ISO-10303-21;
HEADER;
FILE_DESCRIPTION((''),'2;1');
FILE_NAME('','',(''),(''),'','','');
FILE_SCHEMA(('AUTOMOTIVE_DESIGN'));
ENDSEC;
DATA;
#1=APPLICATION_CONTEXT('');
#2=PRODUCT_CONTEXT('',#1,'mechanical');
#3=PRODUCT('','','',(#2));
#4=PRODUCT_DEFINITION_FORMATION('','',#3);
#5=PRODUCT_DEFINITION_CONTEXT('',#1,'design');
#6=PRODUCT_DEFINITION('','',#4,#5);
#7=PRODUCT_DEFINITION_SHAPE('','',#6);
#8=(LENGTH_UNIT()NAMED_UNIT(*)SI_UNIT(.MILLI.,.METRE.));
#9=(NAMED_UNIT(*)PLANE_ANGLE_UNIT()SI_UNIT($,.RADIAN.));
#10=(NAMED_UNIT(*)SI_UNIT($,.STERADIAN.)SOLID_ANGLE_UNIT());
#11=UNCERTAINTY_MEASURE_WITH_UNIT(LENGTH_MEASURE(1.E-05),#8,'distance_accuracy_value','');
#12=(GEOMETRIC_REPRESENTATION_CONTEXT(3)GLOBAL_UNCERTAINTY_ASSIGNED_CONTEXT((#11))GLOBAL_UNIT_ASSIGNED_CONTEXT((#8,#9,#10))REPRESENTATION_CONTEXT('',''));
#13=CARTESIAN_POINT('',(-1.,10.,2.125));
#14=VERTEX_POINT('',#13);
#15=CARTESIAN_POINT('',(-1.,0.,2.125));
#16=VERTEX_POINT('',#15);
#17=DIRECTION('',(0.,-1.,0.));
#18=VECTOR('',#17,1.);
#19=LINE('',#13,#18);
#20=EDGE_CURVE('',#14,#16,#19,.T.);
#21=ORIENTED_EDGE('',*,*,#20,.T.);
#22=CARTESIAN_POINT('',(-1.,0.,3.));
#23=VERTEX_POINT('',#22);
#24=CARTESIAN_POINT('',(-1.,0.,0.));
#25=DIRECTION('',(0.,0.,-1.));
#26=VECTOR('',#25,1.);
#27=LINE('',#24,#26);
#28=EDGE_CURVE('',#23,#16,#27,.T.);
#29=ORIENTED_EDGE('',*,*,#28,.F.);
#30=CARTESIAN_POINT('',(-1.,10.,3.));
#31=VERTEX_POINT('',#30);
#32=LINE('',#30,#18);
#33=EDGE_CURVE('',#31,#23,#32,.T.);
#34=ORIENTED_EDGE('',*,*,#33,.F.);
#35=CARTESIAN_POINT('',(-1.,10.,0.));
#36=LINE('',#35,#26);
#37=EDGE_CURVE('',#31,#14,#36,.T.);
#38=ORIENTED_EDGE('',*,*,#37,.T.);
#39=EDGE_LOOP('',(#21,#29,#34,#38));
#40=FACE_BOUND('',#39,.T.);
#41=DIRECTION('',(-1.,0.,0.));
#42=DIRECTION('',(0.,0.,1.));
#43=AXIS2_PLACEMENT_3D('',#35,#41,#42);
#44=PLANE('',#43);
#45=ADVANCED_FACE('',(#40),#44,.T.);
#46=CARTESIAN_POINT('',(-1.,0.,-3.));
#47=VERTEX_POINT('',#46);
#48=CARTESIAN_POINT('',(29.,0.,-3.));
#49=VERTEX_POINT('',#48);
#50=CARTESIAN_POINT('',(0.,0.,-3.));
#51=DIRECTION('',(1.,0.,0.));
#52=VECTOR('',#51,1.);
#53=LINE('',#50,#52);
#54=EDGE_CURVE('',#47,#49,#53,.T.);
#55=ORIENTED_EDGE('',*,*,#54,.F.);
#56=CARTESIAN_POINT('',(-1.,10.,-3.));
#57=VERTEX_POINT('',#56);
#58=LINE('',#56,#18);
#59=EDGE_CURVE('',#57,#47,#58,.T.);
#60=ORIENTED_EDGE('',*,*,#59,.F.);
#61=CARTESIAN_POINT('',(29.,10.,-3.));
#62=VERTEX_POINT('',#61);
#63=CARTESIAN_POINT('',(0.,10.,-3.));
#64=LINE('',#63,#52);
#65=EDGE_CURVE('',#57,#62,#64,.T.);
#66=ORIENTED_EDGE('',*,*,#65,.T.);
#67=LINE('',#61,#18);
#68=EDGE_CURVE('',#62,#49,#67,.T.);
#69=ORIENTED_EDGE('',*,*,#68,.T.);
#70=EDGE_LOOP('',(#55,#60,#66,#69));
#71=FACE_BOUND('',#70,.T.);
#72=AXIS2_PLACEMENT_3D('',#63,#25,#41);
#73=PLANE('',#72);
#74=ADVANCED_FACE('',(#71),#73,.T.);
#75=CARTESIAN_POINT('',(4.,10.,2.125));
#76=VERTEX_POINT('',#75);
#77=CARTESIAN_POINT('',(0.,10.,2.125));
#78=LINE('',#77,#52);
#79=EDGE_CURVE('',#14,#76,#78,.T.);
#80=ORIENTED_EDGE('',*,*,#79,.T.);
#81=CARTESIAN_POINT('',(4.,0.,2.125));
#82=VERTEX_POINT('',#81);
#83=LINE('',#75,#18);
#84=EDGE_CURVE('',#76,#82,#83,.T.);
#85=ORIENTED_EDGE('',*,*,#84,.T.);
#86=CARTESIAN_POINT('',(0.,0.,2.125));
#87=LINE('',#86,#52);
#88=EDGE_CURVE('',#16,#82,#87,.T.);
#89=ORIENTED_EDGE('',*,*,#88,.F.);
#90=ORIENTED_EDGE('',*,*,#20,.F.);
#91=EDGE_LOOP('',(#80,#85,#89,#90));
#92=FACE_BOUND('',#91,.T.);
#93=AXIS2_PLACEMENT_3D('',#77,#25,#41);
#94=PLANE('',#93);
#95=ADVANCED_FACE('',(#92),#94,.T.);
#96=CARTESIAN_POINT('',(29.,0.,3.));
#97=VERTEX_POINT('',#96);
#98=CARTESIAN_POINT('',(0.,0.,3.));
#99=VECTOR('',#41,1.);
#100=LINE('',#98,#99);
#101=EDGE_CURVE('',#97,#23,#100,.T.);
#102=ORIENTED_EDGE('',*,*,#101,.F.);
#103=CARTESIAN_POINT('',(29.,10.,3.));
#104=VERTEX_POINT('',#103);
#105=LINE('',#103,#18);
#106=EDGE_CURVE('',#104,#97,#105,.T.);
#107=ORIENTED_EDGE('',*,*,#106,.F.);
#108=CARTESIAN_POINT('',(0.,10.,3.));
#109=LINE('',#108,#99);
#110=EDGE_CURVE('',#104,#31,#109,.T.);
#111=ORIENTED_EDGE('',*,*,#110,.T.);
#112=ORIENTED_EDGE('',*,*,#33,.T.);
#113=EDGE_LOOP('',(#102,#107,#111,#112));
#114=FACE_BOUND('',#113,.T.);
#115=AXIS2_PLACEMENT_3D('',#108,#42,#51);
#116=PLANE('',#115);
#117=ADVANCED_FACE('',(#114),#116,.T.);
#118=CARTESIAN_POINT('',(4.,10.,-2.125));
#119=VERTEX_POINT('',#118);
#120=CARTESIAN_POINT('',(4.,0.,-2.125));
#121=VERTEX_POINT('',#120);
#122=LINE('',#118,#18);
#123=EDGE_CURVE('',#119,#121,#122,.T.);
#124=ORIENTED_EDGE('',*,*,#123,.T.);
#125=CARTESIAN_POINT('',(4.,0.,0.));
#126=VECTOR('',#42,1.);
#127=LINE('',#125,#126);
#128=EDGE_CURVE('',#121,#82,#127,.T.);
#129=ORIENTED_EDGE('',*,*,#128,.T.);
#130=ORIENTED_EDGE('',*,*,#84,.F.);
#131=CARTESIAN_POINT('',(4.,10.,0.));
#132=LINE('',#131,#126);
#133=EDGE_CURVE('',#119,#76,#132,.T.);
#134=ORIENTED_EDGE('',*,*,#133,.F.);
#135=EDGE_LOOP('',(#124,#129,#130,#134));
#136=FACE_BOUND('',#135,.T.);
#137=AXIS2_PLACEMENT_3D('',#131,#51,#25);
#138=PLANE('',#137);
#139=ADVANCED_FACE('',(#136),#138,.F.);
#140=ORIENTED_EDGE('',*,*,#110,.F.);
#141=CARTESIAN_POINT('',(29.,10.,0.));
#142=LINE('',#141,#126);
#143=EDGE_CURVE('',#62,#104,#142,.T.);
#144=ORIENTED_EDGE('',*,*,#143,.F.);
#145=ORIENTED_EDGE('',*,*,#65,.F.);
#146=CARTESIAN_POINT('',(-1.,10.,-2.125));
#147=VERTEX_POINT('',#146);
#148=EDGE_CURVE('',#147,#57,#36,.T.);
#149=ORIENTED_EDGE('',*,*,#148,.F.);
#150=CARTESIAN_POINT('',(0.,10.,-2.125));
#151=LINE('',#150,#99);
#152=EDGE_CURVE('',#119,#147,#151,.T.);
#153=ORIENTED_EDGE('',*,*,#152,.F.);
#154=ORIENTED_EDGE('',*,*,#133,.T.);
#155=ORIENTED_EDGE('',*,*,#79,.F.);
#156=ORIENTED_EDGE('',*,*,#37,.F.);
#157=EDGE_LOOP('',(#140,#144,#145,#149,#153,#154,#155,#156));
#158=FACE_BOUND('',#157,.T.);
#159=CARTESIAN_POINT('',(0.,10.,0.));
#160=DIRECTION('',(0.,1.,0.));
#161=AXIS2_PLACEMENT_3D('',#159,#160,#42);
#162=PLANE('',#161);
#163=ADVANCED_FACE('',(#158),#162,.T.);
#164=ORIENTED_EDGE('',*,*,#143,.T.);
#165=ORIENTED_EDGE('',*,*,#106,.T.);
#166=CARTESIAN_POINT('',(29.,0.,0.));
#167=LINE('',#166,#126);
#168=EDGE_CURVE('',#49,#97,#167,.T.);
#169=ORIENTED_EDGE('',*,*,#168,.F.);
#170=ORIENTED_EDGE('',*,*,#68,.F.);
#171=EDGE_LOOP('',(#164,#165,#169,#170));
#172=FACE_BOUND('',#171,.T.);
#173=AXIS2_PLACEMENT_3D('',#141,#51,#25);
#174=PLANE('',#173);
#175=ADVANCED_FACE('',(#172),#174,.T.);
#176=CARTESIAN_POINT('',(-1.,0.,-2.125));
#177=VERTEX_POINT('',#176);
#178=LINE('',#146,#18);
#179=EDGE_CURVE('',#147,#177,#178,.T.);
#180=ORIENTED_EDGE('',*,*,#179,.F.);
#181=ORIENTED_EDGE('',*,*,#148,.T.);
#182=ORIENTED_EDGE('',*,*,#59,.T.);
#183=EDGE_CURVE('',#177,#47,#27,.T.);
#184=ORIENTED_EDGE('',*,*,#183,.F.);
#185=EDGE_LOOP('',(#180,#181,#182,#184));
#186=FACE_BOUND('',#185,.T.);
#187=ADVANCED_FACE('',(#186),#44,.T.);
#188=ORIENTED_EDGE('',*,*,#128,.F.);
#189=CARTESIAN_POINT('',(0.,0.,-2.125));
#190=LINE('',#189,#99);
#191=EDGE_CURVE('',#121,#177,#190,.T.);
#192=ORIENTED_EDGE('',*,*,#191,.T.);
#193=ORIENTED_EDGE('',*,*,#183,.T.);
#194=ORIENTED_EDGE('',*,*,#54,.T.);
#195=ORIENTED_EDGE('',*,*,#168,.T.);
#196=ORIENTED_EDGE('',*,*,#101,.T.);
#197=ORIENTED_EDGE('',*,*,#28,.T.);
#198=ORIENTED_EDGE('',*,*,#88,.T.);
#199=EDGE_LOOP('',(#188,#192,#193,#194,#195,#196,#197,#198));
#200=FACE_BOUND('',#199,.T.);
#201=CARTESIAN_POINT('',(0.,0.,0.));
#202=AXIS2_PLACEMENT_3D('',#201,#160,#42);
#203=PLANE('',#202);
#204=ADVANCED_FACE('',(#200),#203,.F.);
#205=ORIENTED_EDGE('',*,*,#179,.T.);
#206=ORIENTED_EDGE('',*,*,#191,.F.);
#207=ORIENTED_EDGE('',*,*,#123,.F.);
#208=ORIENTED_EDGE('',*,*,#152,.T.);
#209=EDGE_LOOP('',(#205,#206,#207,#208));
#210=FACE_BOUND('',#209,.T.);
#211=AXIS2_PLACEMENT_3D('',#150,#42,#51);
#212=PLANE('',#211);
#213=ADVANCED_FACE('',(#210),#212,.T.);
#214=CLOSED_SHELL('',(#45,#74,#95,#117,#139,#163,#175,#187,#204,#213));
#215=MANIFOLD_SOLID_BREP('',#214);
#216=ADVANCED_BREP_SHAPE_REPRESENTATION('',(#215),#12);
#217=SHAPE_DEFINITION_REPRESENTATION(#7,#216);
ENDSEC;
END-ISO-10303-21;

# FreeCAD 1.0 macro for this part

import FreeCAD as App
import Part
import Sketcher
from FreeCAD import Vector

doc = App.newDocument("Part")
body = doc.addObject("PartDesign::Body", "Body")

# Sketch on XZ plane
sketch1 = body.newObject("Sketcher::SketchObject", "Sketch")
sketch1.AttachmentSupport = (doc.getObject("XZ_Plane"), [""])
sketch1.MapMode = "FlatFace"
sketch1.addGeometry(Part.LineSegment(Vector(-1, -3, 0), Vector(-1, 3, 0)), False)
sketch1.addGeometry(Part.LineSegment(Vector(-1, 3, 0), Vector(29, 3, 0)), False)
sketch1.addGeometry(Part.LineSegment(Vector(29, 3, 0), Vector(29, -3, 0)), False)
sketch1.addGeometry(Part.LineSegment(Vector(29, -3, 0), Vector(-1, -3, 0)), False)
sketch1.addConstraint(Sketcher.Constraint("Coincident", 0, 2, 1, 1))
sketch1.addConstraint(Sketcher.Constraint("Coincident", 1, 2, 2, 1))
sketch1.addConstraint(Sketcher.Constraint("Coincident", 2, 2, 3, 1))
sketch1.addConstraint(Sketcher.Constraint("Coincident", 3, 2, 0, 1))
sketch1.addConstraint(Sketcher.Constraint("Vertical", 0))
sketch1.addConstraint(Sketcher.Constraint("Horizontal", 1))
sketch1.addConstraint(Sketcher.Constraint("Vertical", 2))
sketch1.addConstraint(Sketcher.Constraint("Horizontal", 3))
sketch1.addConstraint(Sketcher.Constraint("DistanceX", 1, 1, 1, 2, 30.0))
sketch1.addConstraint(Sketcher.Constraint("DistanceY", 0, 1, 0, 2, 6.0))
sketch1.addConstraint(Sketcher.Constraint("DistanceX", 0, 2, -1, 1, 1.0))
sketch1.addConstraint(Sketcher.Constraint("DistanceY", -1, 1, 0, 2, 3.0))
pad1 = body.newObject("PartDesign::Pad", "Pad")
pad1.Profile = sketch1
pad1.Length = 10
pad1.Reversed = True

# Sketch on XZ plane
sketch2 = body.newObject("Sketcher::SketchObject", "Sketch001")
sketch2.AttachmentSupport = (doc.getObject("XZ_Plane"), [""])
sketch2.MapMode = "FlatFace"
sketch2.addGeometry(Part.LineSegment(Vector(-1, -2.1, 0), Vector(-1, 2.1, 0)), False)
sketch2.addGeometry(Part.LineSegment(Vector(-1, 2.1, 0), Vector(4, 2.1, 0)), False)
sketch2.addGeometry(Part.LineSegment(Vector(4, 2.1, 0), Vector(4, -2.1, 0)), False)
sketch2.addGeometry(Part.LineSegment(Vector(4, -2.1, 0), Vector(-1, -2.1, 0)), False)
sketch2.addConstraint(Sketcher.Constraint("Coincident", 0, 2, 1, 1))
sketch2.addConstraint(Sketcher.Constraint("Coincident", 1, 2, 2, 1))
sketch2.addConstraint(Sketcher.Constraint("Coincident", 2, 2, 3, 1))
sketch2.addConstraint(Sketcher.Constraint("Coincident", 3, 2, 0, 1))
sketch2.addConstraint(Sketcher.Constraint("Vertical", 0))
sketch2.addConstraint(Sketcher.Constraint("Horizontal", 1))
sketch2.addConstraint(Sketcher.Constraint("Vertical", 2))
sketch2.addConstraint(Sketcher.Constraint("Horizontal", 3))
sketch2.addConstraint(Sketcher.Constraint("DistanceX", 1, 1, 1, 2, 5.0))
sketch2.addConstraint(Sketcher.Constraint("DistanceX", 0, 2, -1, 1, 1.0))
sketch2.addConstraint(Sketcher.Constraint("DistanceY", 0, 1, 0, 2, 4.25))
sketch2.addConstraint(Sketcher.Constraint("DistanceY", -1, 1, 0, 2, 2.125))
pocket1 = body.newObject("PartDesign::Pocket", "Pocket")
pocket1.Profile = sketch2
pocket1.Type = "ThroughAll"

doc.recompute()
